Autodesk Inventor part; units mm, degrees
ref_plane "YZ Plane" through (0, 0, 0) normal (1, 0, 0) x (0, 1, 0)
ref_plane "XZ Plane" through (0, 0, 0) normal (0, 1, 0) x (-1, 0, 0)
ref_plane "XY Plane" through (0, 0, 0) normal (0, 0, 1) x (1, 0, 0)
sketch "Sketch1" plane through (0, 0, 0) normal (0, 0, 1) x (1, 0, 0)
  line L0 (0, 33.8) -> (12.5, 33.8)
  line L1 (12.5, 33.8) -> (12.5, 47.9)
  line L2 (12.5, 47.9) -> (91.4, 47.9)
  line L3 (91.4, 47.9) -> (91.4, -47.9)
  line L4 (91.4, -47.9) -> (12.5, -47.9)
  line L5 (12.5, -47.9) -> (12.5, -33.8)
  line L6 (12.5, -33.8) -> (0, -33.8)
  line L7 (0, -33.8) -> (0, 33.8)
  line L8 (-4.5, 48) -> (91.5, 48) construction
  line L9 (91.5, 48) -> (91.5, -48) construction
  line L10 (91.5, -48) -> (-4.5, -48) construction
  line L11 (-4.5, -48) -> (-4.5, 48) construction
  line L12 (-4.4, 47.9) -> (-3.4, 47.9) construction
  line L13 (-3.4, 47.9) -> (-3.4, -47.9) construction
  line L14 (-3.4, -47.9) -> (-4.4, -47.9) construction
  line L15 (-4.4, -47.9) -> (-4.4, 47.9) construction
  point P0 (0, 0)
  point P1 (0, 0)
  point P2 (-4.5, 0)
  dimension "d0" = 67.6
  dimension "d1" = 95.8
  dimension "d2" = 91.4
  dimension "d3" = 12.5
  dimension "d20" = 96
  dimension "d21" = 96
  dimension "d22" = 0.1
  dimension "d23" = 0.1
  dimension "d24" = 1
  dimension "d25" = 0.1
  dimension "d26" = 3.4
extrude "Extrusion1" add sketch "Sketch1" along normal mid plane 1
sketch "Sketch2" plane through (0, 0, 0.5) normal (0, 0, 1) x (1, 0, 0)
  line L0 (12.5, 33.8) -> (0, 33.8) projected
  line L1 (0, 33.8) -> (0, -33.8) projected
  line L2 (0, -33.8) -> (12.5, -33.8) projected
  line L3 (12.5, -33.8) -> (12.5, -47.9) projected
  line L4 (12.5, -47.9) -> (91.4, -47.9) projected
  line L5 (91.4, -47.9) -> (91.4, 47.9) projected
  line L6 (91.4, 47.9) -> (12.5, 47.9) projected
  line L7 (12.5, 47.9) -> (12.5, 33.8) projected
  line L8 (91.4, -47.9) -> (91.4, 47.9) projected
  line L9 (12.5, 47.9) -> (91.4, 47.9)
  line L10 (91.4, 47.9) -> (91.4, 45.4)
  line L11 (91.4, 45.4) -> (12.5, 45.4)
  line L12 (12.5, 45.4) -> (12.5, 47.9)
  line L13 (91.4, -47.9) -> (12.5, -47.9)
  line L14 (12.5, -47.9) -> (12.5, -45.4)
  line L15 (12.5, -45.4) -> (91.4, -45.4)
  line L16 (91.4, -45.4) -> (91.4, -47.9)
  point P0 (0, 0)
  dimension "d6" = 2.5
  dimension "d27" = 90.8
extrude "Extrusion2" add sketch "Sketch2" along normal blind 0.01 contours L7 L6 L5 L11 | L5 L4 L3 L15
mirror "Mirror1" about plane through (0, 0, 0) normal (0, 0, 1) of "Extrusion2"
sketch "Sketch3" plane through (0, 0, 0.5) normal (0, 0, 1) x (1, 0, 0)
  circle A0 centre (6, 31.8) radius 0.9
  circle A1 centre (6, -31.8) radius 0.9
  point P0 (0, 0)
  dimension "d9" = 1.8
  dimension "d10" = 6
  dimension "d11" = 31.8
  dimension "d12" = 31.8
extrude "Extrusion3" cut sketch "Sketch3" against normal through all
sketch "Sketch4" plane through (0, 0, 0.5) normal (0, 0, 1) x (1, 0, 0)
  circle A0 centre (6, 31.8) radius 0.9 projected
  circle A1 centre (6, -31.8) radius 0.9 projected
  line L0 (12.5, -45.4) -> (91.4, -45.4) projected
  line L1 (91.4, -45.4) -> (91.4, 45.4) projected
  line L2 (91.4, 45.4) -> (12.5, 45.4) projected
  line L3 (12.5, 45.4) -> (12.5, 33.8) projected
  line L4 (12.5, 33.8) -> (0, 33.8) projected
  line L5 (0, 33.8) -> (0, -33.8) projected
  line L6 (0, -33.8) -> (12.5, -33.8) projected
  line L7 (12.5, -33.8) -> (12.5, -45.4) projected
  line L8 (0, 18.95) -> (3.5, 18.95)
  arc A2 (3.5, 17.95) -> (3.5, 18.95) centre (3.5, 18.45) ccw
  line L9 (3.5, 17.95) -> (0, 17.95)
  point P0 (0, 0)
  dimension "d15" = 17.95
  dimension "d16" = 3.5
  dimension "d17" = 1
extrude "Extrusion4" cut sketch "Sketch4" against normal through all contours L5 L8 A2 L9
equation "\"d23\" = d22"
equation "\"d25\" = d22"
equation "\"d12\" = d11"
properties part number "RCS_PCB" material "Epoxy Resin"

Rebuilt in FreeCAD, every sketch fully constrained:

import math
import FreeCAD as App
import Part
import Sketcher

doc = App.newDocument("Part")
body = doc.addObject("PartDesign::Body", "Body")

sketch1 = body.newObject("Sketcher::SketchObject", "Sketch")
sketch1.AttachmentSupport = (doc.getObject("XY_Plane"), [""])
sketch1.MapMode = "FlatFace"
sketch1.addGeometry(Part.LineSegment(App.Vector(12, 34, 0), App.Vector(0, 34, 0)), False)
sketch1.addGeometry(Part.LineSegment(App.Vector(0, 34, 0), App.Vector(0, -34, 0)), False)
sketch1.addGeometry(Part.LineSegment(App.Vector(0, -34, 0), App.Vector(12, -34, 0)), False)
sketch1.addGeometry(Part.LineSegment(App.Vector(12, -34, 0), App.Vector(12, -48, 0)), False)
sketch1.addGeometry(Part.LineSegment(App.Vector(12, -48, 0), App.Vector(91, -48, 0)), False)
sketch1.addGeometry(Part.LineSegment(App.Vector(91, -48, 0), App.Vector(91, 48, 0)), False)
sketch1.addGeometry(Part.LineSegment(App.Vector(91, 48, 0), App.Vector(12, 48, 0)), False)
sketch1.addGeometry(Part.LineSegment(App.Vector(12, 48, 0), App.Vector(12, 34, 0)), False)
sketch1.addConstraint(Sketcher.Constraint("Coincident", 0, 2, 1, 1))
sketch1.addConstraint(Sketcher.Constraint("Coincident", 1, 2, 2, 1))
sketch1.addConstraint(Sketcher.Constraint("Coincident", 2, 2, 3, 1))
sketch1.addConstraint(Sketcher.Constraint("Coincident", 3, 2, 4, 1))
sketch1.addConstraint(Sketcher.Constraint("Coincident", 4, 2, 5, 1))
sketch1.addConstraint(Sketcher.Constraint("Coincident", 5, 2, 6, 1))
sketch1.addConstraint(Sketcher.Constraint("Coincident", 6, 2, 7, 1))
sketch1.addConstraint(Sketcher.Constraint("Coincident", 7, 2, 0, 1))
sketch1.addConstraint(Sketcher.Constraint("Horizontal", 0))
sketch1.addConstraint(Sketcher.Constraint("Vertical", 1))
sketch1.addConstraint(Sketcher.Constraint("Horizontal", 2))
sketch1.addConstraint(Sketcher.Constraint("Vertical", 3))
sketch1.addConstraint(Sketcher.Constraint("Horizontal", 4))
sketch1.addConstraint(Sketcher.Constraint("Vertical", 5))
sketch1.addConstraint(Sketcher.Constraint("Horizontal", 6))
sketch1.addConstraint(Sketcher.Constraint("Vertical", 7))
sketch1.addConstraint(Sketcher.Constraint("Symmetric", 0, 2, 1, 2, -1, 1))
sketch1.addConstraint(Sketcher.Constraint("Symmetric", 3, 2, 6, 2, -1))
sketch1.addConstraint(Sketcher.Constraint("DistanceX", 0, 2, 0, 1, 12.5))
sketch1.addConstraint(Sketcher.Constraint("DistanceY", 1, 2, 1, 1, 67.6))
sketch1.addConstraint(Sketcher.Constraint("DistanceY", 5, 1, 5, 2, 95.8))
sketch1.addConstraint(Sketcher.Constraint("DistanceX", -1, 1, 4, 2, 91.4))
pad1 = body.newObject("PartDesign::Pad", "Pad")
pad1.Profile = sketch1
pad1.Length = 1
pad1.Midplane = True

sketch2 = body.newObject("Sketcher::SketchObject", "Sketch001")
sketch2.AttachmentSupport = (doc.getObject("XY_Plane"), [""])
sketch2.MapMode = "FlatFace"
sketch2.AttachmentOffset = App.Placement(App.Vector(0, 0, 0.5), App.Rotation())
sketch2.addGeometry(Part.LineSegment(App.Vector(12.5, 47.9, 0), App.Vector(12.5, 45.4, 0)), False)
sketch2.addGeometry(Part.LineSegment(App.Vector(12.5, 45.4, 0), App.Vector(91.4, 45.4, 0)), False)
sketch2.addGeometry(Part.LineSegment(App.Vector(91.4, 45.4, 0), App.Vector(91.4, 47.9, 0)), False)
sketch2.addGeometry(Part.LineSegment(App.Vector(91.4, 47.9, 0), App.Vector(12.5, 47.9, 0)), False)
sketch2.addGeometry(Part.LineSegment(App.Vector(91.4, -47.9, 0), App.Vector(91.4, -45.4, 0)), False)
sketch2.addGeometry(Part.LineSegment(App.Vector(91.4, -45.4, 0), App.Vector(12.5, -45.4, 0)), False)
sketch2.addGeometry(Part.LineSegment(App.Vector(12.5, -45.4, 0), App.Vector(12.5, -47.9, 0)), False)
sketch2.addGeometry(Part.LineSegment(App.Vector(12.5, -47.9, 0), App.Vector(91.4, -47.9, 0)), False)
sketch2.addConstraint(Sketcher.Constraint("Coincident", 0, 2, 1, 1))
sketch2.addConstraint(Sketcher.Constraint("Coincident", 1, 2, 2, 1))
sketch2.addConstraint(Sketcher.Constraint("Coincident", 2, 2, 3, 1))
sketch2.addConstraint(Sketcher.Constraint("Coincident", 3, 2, 0, 1))
sketch2.addConstraint(Sketcher.Constraint("Coincident", 4, 2, 5, 1))
sketch2.addConstraint(Sketcher.Constraint("Coincident", 5, 2, 6, 1))
sketch2.addConstraint(Sketcher.Constraint("Coincident", 6, 2, 7, 1))
sketch2.addConstraint(Sketcher.Constraint("Coincident", 7, 2, 4, 1))
sketch2.addConstraint(Sketcher.Constraint("Vertical", 0))
sketch2.addConstraint(Sketcher.Constraint("Horizontal", 1))
sketch2.addConstraint(Sketcher.Constraint("Vertical", 2))
sketch2.addConstraint(Sketcher.Constraint("Horizontal", 3))
sketch2.addConstraint(Sketcher.Constraint("Vertical", 4))
sketch2.addConstraint(Sketcher.Constraint("Horizontal", 5))
sketch2.addConstraint(Sketcher.Constraint("Vertical", 6))
sketch2.addConstraint(Sketcher.Constraint("Horizontal", 7))
sketch2.addConstraint(Sketcher.Constraint("Symmetric", 1, 2, 4, 2, -1))
sketch2.addConstraint(Sketcher.Constraint("Symmetric", 3, 2, 6, 2, -1))
sketch2.addConstraint(Sketcher.Constraint("DistanceY", 0, 2, 0, 1, 2.5))
sketch2.addConstraint(Sketcher.Constraint("DistanceY", 4, 2, 1, 2, 90.8))
sketch2.addConstraint(Sketcher.Constraint("DistanceX", 1, 1, 1, 2, 78.9))
sketch2.addConstraint(Sketcher.Constraint("DistanceX", -1, 1, 0, 2, 12.5))
pad2 = body.newObject("PartDesign::Pad", "Pad001")
pad2.Profile = sketch2
pad2.Length = 0.01
doc.recompute()

mirrored = body.newObject("PartDesign::Mirrored", "Mirrored")
mirrored.Originals = [pad2]
mirrored.MirrorPlane = (doc.getObject("XY_Plane"), [""])
body.Tip = mirrored

sketch3 = body.newObject("Sketcher::SketchObject", "Sketch002")
sketch3.AttachmentSupport = (doc.getObject("XY_Plane"), [""])
sketch3.MapMode = "FlatFace"
sketch3.AttachmentOffset = App.Placement(App.Vector(0, 0, 0.5), App.Rotation())
sketch3.addGeometry(Part.Circle(App.Vector(6, 31.8, 0), App.Vector(0, 0, 1), 0.9), False)
sketch3.addGeometry(Part.Circle(App.Vector(6, -31.8, 0), App.Vector(0, 0, 1), 0.9), False)
sketch3.addConstraint(Sketcher.Constraint("Equal", 0, 1))
sketch3.addConstraint(Sketcher.Constraint("Symmetric", 0, 3, 1, 3, -1))
sketch3.addConstraint(Sketcher.Constraint("Diameter", 0, 1.8))
sketch3.addConstraint(Sketcher.Constraint("DistanceX", -1, 1, 0, 3, 6.0))
sketch3.addConstraint(Sketcher.Constraint("DistanceY", -1, 1, 0, 3, 31.8))
pocket1 = body.newObject("PartDesign::Pocket", "Pocket")
pocket1.Profile = sketch3
pocket1.Type = "ThroughAll"

sketch4 = body.newObject("Sketcher::SketchObject", "Sketch003")
sketch4.AttachmentSupport = (doc.getObject("XY_Plane"), [""])
sketch4.MapMode = "FlatFace"
sketch4.AttachmentOffset = App.Placement(App.Vector(0, 0, 0.5), App.Rotation())
sketch4.addGeometry(Part.LineSegment(App.Vector(0, 18.9, 0), App.Vector(0, 17.9, 0)), False)
sketch4.addGeometry(Part.LineSegment(App.Vector(0, 17.9, 0), App.Vector(3.5, 17.9, 0)), False)
sketch4.addGeometry(Part.ArcOfCircle(Part.Circle(App.Vector(3.5, 18.4, 0), App.Vector(0, 0, 1), 0.5), math.radians(-90), math.radians(90)), False)
sketch4.addGeometry(Part.LineSegment(App.Vector(3.5, 18.9, 0), App.Vector(0, 18.9, 0)), False)
sketch4.addConstraint(Sketcher.Constraint("Coincident", 0, 2, 1, 1))
sketch4.addConstraint(Sketcher.Constraint("Tangent", 1, 2, 2, 1))
sketch4.addConstraint(Sketcher.Constraint("Tangent", 2, 2, 3, 1))
sketch4.addConstraint(Sketcher.Constraint("Coincident", 3, 2, 0, 1))
sketch4.addConstraint(Sketcher.Constraint("Vertical", 0))
sketch4.addConstraint(Sketcher.Constraint("Horizontal", 1))
sketch4.addConstraint(Sketcher.Constraint("Horizontal", 3))
sketch4.addConstraint(Sketcher.Constraint("PointOnObject", 0, 2, -2))
sketch4.addConstraint(Sketcher.Constraint("Radius", 2, 0.5))
sketch4.addConstraint(Sketcher.Constraint("DistanceX", 1, 1, 1, 2, 3.5))
sketch4.addConstraint(Sketcher.Constraint("DistanceY", -1, 1, 0, 2, 17.95))
pocket2 = body.newObject("PartDesign::Pocket", "Pocket001")
pocket2.Profile = sketch4
pocket2.Type = "ThroughAll"

doc.recompute()
